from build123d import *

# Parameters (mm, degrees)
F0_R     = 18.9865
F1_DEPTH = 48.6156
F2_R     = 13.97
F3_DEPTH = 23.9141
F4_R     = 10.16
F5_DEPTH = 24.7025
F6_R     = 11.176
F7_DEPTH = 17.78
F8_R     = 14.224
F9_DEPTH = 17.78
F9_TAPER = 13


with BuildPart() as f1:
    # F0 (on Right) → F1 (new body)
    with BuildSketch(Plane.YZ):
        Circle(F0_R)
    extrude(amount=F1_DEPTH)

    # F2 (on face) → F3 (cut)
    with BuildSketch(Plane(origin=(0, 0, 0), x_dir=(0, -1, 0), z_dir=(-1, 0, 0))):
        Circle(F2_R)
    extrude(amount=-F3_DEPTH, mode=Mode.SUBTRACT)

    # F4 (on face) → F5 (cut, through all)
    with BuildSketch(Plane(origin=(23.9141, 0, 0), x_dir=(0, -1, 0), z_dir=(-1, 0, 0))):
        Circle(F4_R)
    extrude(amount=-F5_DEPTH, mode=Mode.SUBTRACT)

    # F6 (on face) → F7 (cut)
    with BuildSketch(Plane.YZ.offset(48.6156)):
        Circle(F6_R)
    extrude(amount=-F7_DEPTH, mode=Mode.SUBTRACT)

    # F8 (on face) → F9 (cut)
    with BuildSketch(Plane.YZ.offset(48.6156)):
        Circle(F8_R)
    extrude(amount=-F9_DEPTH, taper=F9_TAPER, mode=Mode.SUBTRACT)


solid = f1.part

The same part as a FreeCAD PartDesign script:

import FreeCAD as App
import Part
import Sketcher
from FreeCAD import Vector
Q = App.Units.Quantity

doc = App.newDocument("Part")
body = doc.addObject("PartDesign::Body", "Body")

# Sketch on YZ plane
sketch1 = doc.addObject("Sketcher::SketchObject", "Sketch")
body.addObject(sketch1)
sketch1.AttachmentSupport = (doc.YZ_Plane, [""])
sketch1.MapMode = "FlatFace"
sketch1.addGeometry(Part.Circle(Vector(0, 0, 0), Vector(0, 0, 1), 19), False)
sketch1.addConstraint([
    Sketcher.Constraint("Coincident", 0, 3, -1, 1),
    Sketcher.Constraint("Diameter", 0, Q("1.495 in")),
])
pad1 = doc.addObject("PartDesign::Pad", "Pad")
body.addObject(pad1)
pad1.Profile = sketch1
pad1.Length = Q("1.914 in")

# Sketch on YZ plane
sketch2 = doc.addObject("Sketcher::SketchObject", "Sketch001")
body.addObject(sketch2)
sketch2.AttachmentSupport = (doc.YZ_Plane, [""])
sketch2.MapMode = "FlatFace"
sketch2.addGeometry(Part.Circle(Vector(0, 0, 0), Vector(0, 0, 1), 14), False)
sketch2.addConstraint([
    Sketcher.Constraint("Coincident", 0, 3, -1, 1),
    Sketcher.Constraint("Diameter", 0, Q("1.1 in")),
])
pocket1 = doc.addObject("PartDesign::Pocket", "Pocket")
body.addObject(pocket1)
pocket1.Profile = sketch2
pocket1.Length = Q("0.9415 in")
pocket1.Reversed = True

# Sketch on YZ plane
sketch3 = doc.addObject("Sketcher::SketchObject", "Sketch002")
body.addObject(sketch3)
sketch3.AttachmentSupport = (doc.YZ_Plane, [""])
sketch3.MapMode = "FlatFace"
sketch3.AttachmentOffset = App.Placement(Vector(0, 0, 0.9415 * 25.4), App.Rotation())
sketch3.addGeometry(Part.Circle(Vector(0, 0, 0), Vector(0, 0, 1), 10), False)
sketch3.addConstraint([
    Sketcher.Constraint("Coincident", 0, 3, -1, 1),
    Sketcher.Constraint("Diameter", 0, Q("0.8 in")),
])
pocket2 = doc.addObject("PartDesign::Pocket", "Pocket001")
body.addObject(pocket2)
pocket2.Profile = sketch3
pocket2.Type = "ThroughAll"
pocket2.Reversed = True

# Sketch on YZ plane
sketch4 = doc.addObject("Sketcher::SketchObject", "Sketch003")
body.addObject(sketch4)
sketch4.AttachmentSupport = (doc.YZ_Plane, [""])
sketch4.MapMode = "FlatFace"
sketch4.AttachmentOffset = App.Placement(Vector(0, 0, 1.914 * 25.4), App.Rotation())
sketch4.addGeometry(Part.Circle(Vector(0, 0, 0), Vector(0, 0, 1), 11), False)
sketch4.addConstraint([
    Sketcher.Constraint("Coincident", 0, 3, -1, 1),
    Sketcher.Constraint("Diameter", 0, Q("0.88 in")),
])
pocket3 = doc.addObject("PartDesign::Pocket", "Pocket002")
body.addObject(pocket3)
pocket3.Profile = sketch4
pocket3.Length = Q("0.7 in")

# Sketch on YZ plane
sketch5 = doc.addObject("Sketcher::SketchObject", "Sketch004")
body.addObject(sketch5)
sketch5.AttachmentSupport = (doc.YZ_Plane, [""])
sketch5.MapMode = "FlatFace"
sketch5.AttachmentOffset = App.Placement(Vector(0, 0, 1.914 * 25.4), App.Rotation())
sketch5.addGeometry(Part.Circle(Vector(0, 0, 0), Vector(0, 0, 1), 14), False)
sketch5.addConstraint([
    Sketcher.Constraint("Coincident", 0, 3, -1, 1),
    Sketcher.Constraint("Diameter", 0, Q("1.12 in")),
])
pocket4 = doc.addObject("PartDesign::Pocket", "Pocket003")
body.addObject(pocket4)
pocket4.Profile = sketch5
pocket4.Length = Q("0.7 in")
pocket4.TaperAngle = -13

doc.recompute()
